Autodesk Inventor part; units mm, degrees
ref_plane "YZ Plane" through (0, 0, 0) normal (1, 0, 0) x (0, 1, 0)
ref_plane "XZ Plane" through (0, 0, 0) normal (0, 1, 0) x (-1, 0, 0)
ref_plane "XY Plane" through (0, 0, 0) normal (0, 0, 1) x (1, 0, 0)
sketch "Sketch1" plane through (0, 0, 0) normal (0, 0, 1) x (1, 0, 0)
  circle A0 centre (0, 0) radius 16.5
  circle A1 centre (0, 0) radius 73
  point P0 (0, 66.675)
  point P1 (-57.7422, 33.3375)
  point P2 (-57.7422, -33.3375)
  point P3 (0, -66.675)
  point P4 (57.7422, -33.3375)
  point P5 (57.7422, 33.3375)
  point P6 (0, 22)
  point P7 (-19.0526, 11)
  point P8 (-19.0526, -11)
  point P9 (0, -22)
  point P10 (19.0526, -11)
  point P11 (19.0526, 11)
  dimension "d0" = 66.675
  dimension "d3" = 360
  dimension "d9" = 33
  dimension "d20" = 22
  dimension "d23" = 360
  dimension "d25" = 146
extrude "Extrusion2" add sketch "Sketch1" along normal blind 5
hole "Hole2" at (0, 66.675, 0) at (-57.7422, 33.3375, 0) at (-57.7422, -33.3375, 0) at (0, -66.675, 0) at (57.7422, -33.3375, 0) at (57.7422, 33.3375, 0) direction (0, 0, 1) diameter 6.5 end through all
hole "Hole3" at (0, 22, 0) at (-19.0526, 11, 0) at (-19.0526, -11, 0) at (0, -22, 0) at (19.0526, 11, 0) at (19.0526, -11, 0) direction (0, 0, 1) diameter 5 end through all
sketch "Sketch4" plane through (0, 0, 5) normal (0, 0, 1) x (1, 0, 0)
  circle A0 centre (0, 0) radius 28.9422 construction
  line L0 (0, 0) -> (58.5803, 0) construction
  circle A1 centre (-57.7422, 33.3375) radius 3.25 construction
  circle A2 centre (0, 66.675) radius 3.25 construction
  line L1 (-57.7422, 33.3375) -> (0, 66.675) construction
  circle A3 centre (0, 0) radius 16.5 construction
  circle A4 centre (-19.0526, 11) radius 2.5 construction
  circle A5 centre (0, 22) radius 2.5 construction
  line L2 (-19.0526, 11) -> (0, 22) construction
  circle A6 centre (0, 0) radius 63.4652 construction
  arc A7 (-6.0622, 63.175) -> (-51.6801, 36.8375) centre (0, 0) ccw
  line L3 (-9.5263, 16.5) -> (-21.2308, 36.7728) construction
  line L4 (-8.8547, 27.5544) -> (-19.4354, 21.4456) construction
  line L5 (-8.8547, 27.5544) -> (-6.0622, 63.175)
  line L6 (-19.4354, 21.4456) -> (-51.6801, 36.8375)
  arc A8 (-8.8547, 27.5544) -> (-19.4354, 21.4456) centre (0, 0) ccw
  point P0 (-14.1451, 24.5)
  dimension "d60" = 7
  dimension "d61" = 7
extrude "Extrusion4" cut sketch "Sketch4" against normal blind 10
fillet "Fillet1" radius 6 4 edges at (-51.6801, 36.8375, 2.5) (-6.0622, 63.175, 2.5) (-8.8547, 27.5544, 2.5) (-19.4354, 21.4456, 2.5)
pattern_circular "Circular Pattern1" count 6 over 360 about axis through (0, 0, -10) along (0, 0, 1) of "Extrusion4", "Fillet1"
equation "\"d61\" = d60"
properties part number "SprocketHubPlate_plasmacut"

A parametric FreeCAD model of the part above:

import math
import FreeCAD as App
import Part
import Sketcher

V = App.Vector


def edges_at(feature, points):
    """Names of the edges that pass closest to the given points."""
    edges = feature.Shape.Edges
    near = lambda p: min(range(len(edges)), key=lambda i: edges[i].distToShape(Part.Vertex(*p))[0])
    return sorted({f"Edge{near(p) + 1}" for p in points})

doc = App.newDocument("Part")
body = doc.addObject("PartDesign::Body", "Body")

# Sketch on XY plane
sketch1 = body.newObject("Sketcher::SketchObject", "Sketch")
sketch1.AttachmentSupport = (doc.getObject("XY_Plane"), [""])
sketch1.MapMode = "FlatFace"
sketch1.addGeometry([
    Part.Circle(V(0, 0, 0), V(0, 0, 1), 73),
    Part.Circle(V(0, 0, 0), V(0, 0, 1), 16),
], False)
sketch1.addConstraint([
    Sketcher.Constraint("Coincident", 0, 3, -1, 1),
    Sketcher.Constraint("Coincident", 1, 3, -1, 1),
    Sketcher.Constraint("Diameter", 0, 146.0),
    Sketcher.Constraint("Diameter", 1, 33.0),
])
pad1 = body.newObject("PartDesign::Pad", "Pad")
pad1.Profile = sketch1
pad1.Length = 5

# Sketch on XY plane
sketch2 = body.newObject("Sketcher::SketchObject", "Sketch001")
sketch2.AttachmentSupport = (doc.getObject("XY_Plane"), [""])
sketch2.MapMode = "FlatFace"
sketch2.addGeometry([
    Part.Circle(V(0, 66.7, 0), V(0, 0, 1), 3.2),  # 0
    Part.Circle(V(-57.7, 33.3, 0), V(0, 0, 1), 3.2),  # 1
    Part.Circle(V(-57.7, -33.3, 0), V(0, 0, 1), 3.2),  # 2
    Part.Circle(V(0, -66.7, 0), V(0, 0, 1), 3.2),  # 3
    Part.Circle(V(57.7, -33.3, 0), V(0, 0, 1), 3.2),  # 4
    Part.Circle(V(57.7, 33.3, 0), V(0, 0, 1), 3.2),  # 5
], False)
sketch2.addConstraint([
    Sketcher.Constraint("Equal", 0, 1),
    Sketcher.Constraint("Equal", 1, 2),
    Sketcher.Constraint("Equal", 2, 3),
    Sketcher.Constraint("Equal", 3, 4),
    Sketcher.Constraint("Equal", 4, 5),
    Sketcher.Constraint("Symmetric", 0, 3, 3, 3, -1, 1),
    Sketcher.Constraint("Symmetric", 1, 3, 4, 3, -1, 1),
    Sketcher.Constraint("Symmetric", 2, 3, 5, 3, -1, 1),
    Sketcher.Constraint("Symmetric", 2, 3, 4, 3, -2),
    Sketcher.Constraint("PointOnObject", 0, 3, -2),
    Sketcher.Constraint("Diameter", 0, 6.5),
    Sketcher.Constraint("DistanceY", 3, 3, 0, 3, 133.35),
    Sketcher.Constraint("DistanceY", 2, 3, 1, 3, 66.675),
    Sketcher.Constraint("DistanceX", 1, 3, -1, 1, 57.7422),
])
doc.recompute()
hole = body.newObject("PartDesign::Hole", "Hole")
hole.Profile = sketch2
hole.ThreadType = "None"
hole.Diameter = 6.5
hole.DepthType = "ThroughAll"
hole.Reversed = True

# Sketch on XY plane
sketch3 = body.newObject("Sketcher::SketchObject", "Sketch002")
sketch3.AttachmentSupport = (doc.getObject("XY_Plane"), [""])
sketch3.MapMode = "FlatFace"
sketch3.addGeometry([
    Part.Circle(V(0, 22, 0), V(0, 0, 1), 2.5),  # 0
    Part.Circle(V(-19.1, 11, 0), V(0, 0, 1), 2.5),  # 1
    Part.Circle(V(-19.1, -11, 0), V(0, 0, 1), 2.5),  # 2
    Part.Circle(V(0, -22, 0), V(0, 0, 1), 2.5),  # 3
    Part.Circle(V(19.1, 11, 0), V(0, 0, 1), 2.5),  # 4
    Part.Circle(V(19.1, -11, 0), V(0, 0, 1), 2.5),  # 5
], False)
sketch3.addConstraint([
    Sketcher.Constraint("Equal", 0, 1),
    Sketcher.Constraint("Equal", 1, 2),
    Sketcher.Constraint("Equal", 2, 3),
    Sketcher.Constraint("Equal", 3, 4),
    Sketcher.Constraint("Equal", 4, 5),
    Sketcher.Constraint("Symmetric", 0, 3, 3, 3, -1, 1),
    Sketcher.Constraint("Symmetric", 2, 3, 4, 3, -1, 1),
    Sketcher.Constraint("Symmetric", 1, 3, 5, 3, -1, 1),
    Sketcher.Constraint("Symmetric", 1, 3, 4, 3, -2),
    Sketcher.Constraint("PointOnObject", 0, 3, -2),
    Sketcher.Constraint("Diameter", 0, 5.0),
    Sketcher.Constraint("DistanceY", -1, 1, 0, 3, 22.0),
    Sketcher.Constraint("DistanceY", -1, 1, 1, 3, 11.0),
    Sketcher.Constraint("DistanceX", 1, 3, -1, 1, 19.0526),
])
doc.recompute()
hole2 = body.newObject("PartDesign::Hole", "Hole001")
hole2.Profile = sketch3
hole2.ThreadType = "None"
hole2.Diameter = 5
hole2.DepthType = "ThroughAll"
hole2.Reversed = True

# Sketch on XY plane
sketch4 = body.newObject("Sketcher::SketchObject", "Sketch003")
sketch4.AttachmentSupport = (doc.getObject("XY_Plane"), [""])
sketch4.MapMode = "FlatFace"
sketch4.AttachmentOffset = App.Placement(V(0, 0, 5), App.Rotation())
sketch4.addGeometry([
    Part.LineSegment(V(-9, 28, 0), V(-6, 63, 0)),
    Part.ArcOfCircle(Part.Circle(V(0, 0, 0), V(0, 0, 1), 63), math.radians(95), math.radians(145)),
    Part.LineSegment(V(-52, 37, 0), V(-19, 21, 0)),
    Part.ArcOfCircle(Part.Circle(V(0, 0, 0), V(0, 0, 1), 29), math.radians(108), math.radians(132)),
], False)
sketch4.addConstraint([
    Sketcher.Constraint("Coincident", 0, 2, 1, 1),
    Sketcher.Constraint("Coincident", 1, 2, 2, 1),
    Sketcher.Constraint("Coincident", 2, 2, 3, 2),
    Sketcher.Constraint("Coincident", 3, 1, 0, 1),
    Sketcher.Constraint("Coincident", 1, 3, -1, 1),
    Sketcher.Constraint("Coincident", 3, 3, -1, 1),
    Sketcher.Constraint("Equal", 0, 2),
    Sketcher.Constraint("Radius", 1, 63.4652),
    Sketcher.Constraint("Radius", 3, 28.9422),
    Sketcher.Constraint("Distance", 0, 35.73),
    Sketcher.Constraint("DistanceX", 1, 2, -1, 1, 51.68),
    Sketcher.Constraint("DistanceY", -1, 1, 0, 2, 63.175),
])
pocket1 = body.newObject("PartDesign::Pocket", "Pocket")
pocket1.Profile = sketch4
pocket1.Length = 10
doc.recompute()

fillet = body.newObject("PartDesign::Fillet", "Fillet")
fillet.Base = (pocket1, edges_at(pocket1, [
    (-51.68, 36.837, 2.5),
    (-6.062, 63.175, 2.5),
    (-8.855, 27.554, 2.5),
    (-19.435, 21.446, 2.5),
]))
fillet.Radius = 6
doc.recompute()

polarpattern = body.newObject("PartDesign::PolarPattern", "PolarPattern")
polarpattern.Originals = [pocket1, fillet]
polarpattern.Axis = (doc.getObject("Z_Axis"), [""])
polarpattern.Angle = 360
polarpattern.Occurrences = 6
body.Tip = polarpattern

doc.recompute()
